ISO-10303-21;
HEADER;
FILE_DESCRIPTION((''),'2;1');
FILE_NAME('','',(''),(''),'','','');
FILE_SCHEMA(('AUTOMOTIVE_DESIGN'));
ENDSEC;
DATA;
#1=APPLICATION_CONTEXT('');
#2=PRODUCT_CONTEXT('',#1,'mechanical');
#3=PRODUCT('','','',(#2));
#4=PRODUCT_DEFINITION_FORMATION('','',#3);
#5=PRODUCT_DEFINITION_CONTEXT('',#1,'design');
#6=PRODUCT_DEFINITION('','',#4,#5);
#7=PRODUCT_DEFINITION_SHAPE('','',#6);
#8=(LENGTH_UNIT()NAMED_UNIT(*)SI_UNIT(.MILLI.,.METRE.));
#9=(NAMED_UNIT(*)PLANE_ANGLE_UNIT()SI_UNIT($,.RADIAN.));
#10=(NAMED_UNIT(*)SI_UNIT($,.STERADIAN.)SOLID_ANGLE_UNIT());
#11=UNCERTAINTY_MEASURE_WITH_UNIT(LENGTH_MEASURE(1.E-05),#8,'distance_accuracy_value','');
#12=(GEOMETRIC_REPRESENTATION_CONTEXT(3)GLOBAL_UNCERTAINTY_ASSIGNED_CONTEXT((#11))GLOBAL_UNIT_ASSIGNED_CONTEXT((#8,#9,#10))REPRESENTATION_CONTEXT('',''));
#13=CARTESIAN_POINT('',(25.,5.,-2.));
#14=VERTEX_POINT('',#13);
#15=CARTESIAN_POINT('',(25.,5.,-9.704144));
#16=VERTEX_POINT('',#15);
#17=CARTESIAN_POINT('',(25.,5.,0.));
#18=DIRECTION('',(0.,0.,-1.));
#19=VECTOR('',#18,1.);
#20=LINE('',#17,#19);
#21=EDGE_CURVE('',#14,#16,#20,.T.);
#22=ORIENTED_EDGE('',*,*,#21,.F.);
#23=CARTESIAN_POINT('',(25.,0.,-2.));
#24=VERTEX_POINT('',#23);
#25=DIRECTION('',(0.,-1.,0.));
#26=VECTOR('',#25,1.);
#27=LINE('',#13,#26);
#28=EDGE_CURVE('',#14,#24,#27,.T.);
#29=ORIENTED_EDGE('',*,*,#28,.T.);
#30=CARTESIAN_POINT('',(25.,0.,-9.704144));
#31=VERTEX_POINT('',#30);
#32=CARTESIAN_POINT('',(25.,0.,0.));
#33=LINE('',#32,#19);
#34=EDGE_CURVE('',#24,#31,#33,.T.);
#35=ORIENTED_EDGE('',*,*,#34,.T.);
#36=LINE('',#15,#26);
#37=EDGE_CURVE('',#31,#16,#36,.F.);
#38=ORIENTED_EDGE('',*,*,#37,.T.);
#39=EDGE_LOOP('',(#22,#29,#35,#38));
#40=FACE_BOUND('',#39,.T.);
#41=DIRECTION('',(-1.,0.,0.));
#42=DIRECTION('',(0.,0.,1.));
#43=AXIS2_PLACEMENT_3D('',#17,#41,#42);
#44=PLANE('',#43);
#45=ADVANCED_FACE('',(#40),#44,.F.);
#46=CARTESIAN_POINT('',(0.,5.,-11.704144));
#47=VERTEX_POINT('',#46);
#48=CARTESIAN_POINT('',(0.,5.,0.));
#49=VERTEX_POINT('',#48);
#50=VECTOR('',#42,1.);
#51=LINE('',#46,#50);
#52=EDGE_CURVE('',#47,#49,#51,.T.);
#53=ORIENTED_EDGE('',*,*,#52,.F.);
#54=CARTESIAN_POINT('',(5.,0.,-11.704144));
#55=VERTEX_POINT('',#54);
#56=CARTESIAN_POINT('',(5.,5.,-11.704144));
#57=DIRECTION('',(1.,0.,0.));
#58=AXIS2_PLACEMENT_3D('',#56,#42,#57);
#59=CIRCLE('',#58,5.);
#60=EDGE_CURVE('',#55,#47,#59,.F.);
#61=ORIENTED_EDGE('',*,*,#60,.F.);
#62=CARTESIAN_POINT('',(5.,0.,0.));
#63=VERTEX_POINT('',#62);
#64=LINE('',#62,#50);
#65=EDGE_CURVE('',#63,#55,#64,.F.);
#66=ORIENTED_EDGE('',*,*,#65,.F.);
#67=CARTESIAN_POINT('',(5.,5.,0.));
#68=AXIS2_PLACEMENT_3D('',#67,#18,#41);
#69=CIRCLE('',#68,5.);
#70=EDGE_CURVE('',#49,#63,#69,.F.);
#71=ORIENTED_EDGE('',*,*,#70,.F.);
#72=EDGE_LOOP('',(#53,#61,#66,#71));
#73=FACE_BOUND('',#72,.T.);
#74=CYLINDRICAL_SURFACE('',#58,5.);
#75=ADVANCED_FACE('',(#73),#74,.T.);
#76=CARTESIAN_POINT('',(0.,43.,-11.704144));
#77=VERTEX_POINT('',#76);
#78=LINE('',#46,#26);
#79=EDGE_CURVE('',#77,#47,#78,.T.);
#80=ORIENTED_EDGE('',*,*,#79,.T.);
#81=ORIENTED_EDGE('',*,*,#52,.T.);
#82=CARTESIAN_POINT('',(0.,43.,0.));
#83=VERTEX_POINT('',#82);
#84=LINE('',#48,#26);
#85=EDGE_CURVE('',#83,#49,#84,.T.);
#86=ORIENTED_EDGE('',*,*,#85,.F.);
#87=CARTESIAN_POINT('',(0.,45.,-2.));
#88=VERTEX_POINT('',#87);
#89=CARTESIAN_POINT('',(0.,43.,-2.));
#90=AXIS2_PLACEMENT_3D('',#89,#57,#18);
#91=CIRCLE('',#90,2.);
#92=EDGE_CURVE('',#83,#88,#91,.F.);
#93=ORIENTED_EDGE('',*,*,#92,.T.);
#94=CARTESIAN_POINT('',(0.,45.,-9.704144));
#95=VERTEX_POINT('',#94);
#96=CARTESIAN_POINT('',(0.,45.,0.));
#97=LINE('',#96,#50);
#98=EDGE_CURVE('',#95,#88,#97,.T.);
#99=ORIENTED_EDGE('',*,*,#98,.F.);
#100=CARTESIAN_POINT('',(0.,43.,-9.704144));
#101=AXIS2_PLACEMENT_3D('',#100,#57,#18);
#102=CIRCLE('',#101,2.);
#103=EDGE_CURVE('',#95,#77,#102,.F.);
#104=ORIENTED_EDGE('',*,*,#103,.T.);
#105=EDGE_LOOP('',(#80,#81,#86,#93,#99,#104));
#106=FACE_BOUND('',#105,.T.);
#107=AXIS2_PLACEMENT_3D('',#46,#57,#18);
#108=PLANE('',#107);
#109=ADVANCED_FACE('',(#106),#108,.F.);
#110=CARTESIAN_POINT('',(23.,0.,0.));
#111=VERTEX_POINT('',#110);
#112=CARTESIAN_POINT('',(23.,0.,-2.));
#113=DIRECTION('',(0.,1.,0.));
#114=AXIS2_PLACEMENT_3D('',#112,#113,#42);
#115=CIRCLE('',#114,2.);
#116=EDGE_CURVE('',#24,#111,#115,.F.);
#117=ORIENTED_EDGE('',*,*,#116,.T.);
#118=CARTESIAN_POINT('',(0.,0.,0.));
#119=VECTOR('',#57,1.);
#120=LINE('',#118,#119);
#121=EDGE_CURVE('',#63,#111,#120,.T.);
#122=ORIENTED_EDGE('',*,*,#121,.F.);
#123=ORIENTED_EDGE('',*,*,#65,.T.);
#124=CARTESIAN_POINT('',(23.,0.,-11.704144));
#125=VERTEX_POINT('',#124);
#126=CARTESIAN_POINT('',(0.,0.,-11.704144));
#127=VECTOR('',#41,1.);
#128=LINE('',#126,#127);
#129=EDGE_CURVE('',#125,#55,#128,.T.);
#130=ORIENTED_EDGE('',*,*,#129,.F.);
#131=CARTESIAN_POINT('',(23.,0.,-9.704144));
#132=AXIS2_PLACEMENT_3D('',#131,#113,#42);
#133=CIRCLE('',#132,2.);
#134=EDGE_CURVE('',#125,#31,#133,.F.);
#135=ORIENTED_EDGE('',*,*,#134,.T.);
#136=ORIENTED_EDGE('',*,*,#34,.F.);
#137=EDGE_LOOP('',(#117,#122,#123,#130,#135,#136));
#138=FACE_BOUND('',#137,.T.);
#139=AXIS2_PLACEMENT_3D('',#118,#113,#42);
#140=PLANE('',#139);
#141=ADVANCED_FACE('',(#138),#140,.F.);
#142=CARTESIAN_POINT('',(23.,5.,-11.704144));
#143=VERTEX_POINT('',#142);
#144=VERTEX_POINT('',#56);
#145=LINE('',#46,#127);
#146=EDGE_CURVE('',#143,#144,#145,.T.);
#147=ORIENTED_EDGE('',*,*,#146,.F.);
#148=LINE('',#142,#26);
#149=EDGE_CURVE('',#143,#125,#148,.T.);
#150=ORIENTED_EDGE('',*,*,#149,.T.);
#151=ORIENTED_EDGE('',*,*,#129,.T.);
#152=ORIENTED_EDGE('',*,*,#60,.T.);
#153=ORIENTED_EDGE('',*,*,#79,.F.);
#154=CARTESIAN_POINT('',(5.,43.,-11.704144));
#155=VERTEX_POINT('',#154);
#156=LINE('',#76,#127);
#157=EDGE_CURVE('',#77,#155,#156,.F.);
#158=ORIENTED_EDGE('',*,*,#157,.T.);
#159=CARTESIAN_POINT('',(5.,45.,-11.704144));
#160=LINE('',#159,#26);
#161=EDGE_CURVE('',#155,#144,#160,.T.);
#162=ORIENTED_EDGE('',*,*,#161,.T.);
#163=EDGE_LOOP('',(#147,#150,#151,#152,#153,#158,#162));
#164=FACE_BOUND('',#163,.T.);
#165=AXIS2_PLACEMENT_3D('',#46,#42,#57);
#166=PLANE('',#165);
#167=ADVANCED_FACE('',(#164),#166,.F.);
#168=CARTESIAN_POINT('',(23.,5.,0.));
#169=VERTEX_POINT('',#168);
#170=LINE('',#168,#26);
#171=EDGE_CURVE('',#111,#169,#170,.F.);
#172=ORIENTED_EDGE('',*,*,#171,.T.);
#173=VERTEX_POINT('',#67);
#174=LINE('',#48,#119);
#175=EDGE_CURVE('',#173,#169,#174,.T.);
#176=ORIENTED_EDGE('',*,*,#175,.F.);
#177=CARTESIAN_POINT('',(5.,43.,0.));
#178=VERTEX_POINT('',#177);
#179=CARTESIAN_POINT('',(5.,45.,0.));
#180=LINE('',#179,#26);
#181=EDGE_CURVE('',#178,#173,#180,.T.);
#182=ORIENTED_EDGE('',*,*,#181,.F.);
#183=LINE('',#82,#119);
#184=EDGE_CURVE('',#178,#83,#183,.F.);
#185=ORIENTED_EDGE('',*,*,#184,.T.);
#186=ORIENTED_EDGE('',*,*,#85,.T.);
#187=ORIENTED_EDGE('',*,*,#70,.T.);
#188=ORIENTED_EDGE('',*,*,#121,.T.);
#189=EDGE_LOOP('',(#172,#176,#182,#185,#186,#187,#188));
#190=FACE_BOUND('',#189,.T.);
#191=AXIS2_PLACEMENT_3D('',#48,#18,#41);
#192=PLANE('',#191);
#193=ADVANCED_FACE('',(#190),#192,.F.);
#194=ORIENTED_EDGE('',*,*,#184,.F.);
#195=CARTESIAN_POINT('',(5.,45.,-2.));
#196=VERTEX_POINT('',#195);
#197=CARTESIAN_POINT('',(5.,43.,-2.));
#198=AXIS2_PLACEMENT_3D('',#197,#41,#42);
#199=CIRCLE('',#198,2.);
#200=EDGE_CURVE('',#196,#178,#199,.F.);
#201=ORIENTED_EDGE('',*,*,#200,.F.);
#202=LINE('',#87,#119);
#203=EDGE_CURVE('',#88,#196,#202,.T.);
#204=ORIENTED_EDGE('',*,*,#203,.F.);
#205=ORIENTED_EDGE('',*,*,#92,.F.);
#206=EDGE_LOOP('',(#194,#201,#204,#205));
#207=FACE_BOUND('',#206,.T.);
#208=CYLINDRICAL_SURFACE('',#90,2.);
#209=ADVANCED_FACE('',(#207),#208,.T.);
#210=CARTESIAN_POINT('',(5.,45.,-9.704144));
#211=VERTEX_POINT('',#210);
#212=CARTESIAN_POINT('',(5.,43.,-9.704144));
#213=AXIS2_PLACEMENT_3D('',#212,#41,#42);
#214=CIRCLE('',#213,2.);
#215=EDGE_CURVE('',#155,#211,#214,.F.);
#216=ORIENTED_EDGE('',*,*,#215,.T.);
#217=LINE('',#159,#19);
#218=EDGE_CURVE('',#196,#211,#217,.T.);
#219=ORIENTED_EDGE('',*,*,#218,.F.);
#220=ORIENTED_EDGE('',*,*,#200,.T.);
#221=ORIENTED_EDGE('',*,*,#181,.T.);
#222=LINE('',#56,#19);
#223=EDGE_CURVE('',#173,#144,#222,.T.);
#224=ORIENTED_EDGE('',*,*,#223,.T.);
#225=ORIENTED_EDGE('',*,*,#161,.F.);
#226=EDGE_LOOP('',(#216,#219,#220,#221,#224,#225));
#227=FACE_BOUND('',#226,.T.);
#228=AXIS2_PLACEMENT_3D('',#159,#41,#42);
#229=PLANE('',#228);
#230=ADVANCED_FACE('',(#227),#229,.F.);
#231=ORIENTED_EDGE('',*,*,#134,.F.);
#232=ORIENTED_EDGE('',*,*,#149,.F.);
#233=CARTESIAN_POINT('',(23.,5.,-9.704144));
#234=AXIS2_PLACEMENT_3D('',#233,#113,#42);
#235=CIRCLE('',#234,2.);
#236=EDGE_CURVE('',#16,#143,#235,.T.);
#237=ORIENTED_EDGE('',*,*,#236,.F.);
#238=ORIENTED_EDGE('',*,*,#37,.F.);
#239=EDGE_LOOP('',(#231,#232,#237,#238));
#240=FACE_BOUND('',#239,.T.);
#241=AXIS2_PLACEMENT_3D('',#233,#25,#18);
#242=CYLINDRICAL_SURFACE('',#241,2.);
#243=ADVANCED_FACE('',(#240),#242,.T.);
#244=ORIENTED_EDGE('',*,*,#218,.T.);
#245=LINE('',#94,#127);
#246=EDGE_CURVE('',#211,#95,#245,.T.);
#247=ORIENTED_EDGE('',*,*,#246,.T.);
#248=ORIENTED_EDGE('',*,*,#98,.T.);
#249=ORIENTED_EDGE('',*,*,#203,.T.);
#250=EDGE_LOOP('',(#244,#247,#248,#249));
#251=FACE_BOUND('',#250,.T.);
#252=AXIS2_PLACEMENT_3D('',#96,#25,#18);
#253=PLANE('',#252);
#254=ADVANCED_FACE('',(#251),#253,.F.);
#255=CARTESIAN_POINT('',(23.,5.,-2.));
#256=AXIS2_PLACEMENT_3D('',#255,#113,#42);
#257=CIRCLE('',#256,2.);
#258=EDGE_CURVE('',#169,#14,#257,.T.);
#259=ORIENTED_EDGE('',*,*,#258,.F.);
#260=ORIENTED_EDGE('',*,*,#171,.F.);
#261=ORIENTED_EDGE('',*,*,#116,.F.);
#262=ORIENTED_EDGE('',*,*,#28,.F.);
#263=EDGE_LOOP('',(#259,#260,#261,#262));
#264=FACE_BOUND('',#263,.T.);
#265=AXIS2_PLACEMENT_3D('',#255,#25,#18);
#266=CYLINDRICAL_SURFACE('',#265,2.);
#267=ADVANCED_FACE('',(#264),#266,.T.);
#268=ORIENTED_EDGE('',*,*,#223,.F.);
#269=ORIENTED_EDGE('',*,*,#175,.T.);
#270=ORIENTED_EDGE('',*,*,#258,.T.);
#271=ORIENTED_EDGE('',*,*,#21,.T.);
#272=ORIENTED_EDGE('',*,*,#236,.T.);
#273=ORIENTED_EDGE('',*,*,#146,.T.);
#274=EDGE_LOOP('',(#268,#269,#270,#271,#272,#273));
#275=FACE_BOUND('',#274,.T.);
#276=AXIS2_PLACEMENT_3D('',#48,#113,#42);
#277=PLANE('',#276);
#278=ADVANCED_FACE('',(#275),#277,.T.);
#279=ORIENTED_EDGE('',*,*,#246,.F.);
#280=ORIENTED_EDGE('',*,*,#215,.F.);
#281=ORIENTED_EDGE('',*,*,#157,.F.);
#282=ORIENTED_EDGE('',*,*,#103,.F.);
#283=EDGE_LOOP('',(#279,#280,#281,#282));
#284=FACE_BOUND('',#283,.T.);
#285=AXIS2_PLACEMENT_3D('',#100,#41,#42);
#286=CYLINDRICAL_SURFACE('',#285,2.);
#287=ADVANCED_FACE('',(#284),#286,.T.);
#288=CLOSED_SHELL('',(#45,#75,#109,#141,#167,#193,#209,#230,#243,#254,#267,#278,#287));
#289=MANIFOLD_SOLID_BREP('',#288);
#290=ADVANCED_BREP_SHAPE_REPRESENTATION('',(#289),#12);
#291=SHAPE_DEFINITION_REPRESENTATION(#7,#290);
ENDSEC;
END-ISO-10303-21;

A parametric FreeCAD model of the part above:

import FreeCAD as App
import Part
import Sketcher

V = App.Vector
Q = App.Units.Quantity


def edges_at(feature, points):
    """Names of the edges that pass closest to the given points."""
    edges = feature.Shape.Edges
    near = lambda p: min(range(len(edges)), key=lambda i: edges[i].distToShape(Part.Vertex(*p))[0])
    return sorted({f"Edge{near(p) + 1}" for p in points})

doc = App.newDocument("Part")
body = doc.addObject("PartDesign::Body", "Body")

# Sketch on XZ plane
sketch1 = doc.addObject("Sketcher::SketchObject", "Sketch")
body.addObject(sketch1)
sketch1.AttachmentSupport = (doc.XZ_Plane, [""])
sketch1.MapMode = "FlatFace"
sketch1.addGeometry(Part.LineSegment(V(0, -12, 0), V(0, 0, 0)), False)
sketch1.addGeometry(Part.LineSegment(V(0, 0, 0), V(25, 0, 0)), False)
sketch1.addGeometry(Part.LineSegment(V(25, 0, 0), V(25, -12, 0)), False)
sketch1.addGeometry(Part.LineSegment(V(25, -12, 0), V(0, -12, 0)), False)
sketch1.addConstraint(Sketcher.Constraint("Coincident", 0, 2, 1, 1))
sketch1.addConstraint(Sketcher.Constraint("Coincident", 1, 2, 2, 1))
sketch1.addConstraint(Sketcher.Constraint("Coincident", 2, 2, 3, 1))
sketch1.addConstraint(Sketcher.Constraint("Coincident", 3, 2, 0, 1))
sketch1.addConstraint(Sketcher.Constraint("Vertical", 0))
sketch1.addConstraint(Sketcher.Constraint("Horizontal", 1))
sketch1.addConstraint(Sketcher.Constraint("Vertical", 2))
sketch1.addConstraint(Sketcher.Constraint("Horizontal", 3))
sketch1.addConstraint(Sketcher.Constraint("Coincident", 0, 2, -1, 1))
sketch1.addConstraint(Sketcher.Constraint("DistanceX", 1, 1, 1, 2, Q("25 mm")))
sketch1.addConstraint(Sketcher.Constraint("DistanceY", 0, 1, 0, 2, Q("11.704144 mm")))
pad1 = doc.addObject("PartDesign::Pad", "Pad")
body.addObject(pad1)
pad1.Profile = sketch1
pad1.Length = 5
pad1.Reversed = True

# Sketch on XZ plane
sketch2 = doc.addObject("Sketcher::SketchObject", "Sketch001")
body.addObject(sketch2)
sketch2.AttachmentSupport = (doc.XZ_Plane, [""])
sketch2.MapMode = "FlatFace"
sketch2.AttachmentOffset = App.Placement(V(0, 0, -5), App.Rotation())
sketch2.addGeometry(Part.LineSegment(V(0, -12, 0), V(0, 0, 0)), False)
sketch2.addGeometry(Part.LineSegment(V(0, 0, 0), V(5, 0, 0)), False)
sketch2.addGeometry(Part.LineSegment(V(5, 0, 0), V(5, -12, 0)), False)
sketch2.addGeometry(Part.LineSegment(V(5, -12, 0), V(0, -12, 0)), False)
sketch2.addConstraint(Sketcher.Constraint("Coincident", 0, 2, 1, 1))
sketch2.addConstraint(Sketcher.Constraint("Coincident", 1, 2, 2, 1))
sketch2.addConstraint(Sketcher.Constraint("Coincident", 2, 2, 3, 1))
sketch2.addConstraint(Sketcher.Constraint("Coincident", 3, 2, 0, 1))
sketch2.addConstraint(Sketcher.Constraint("Vertical", 0))
sketch2.addConstraint(Sketcher.Constraint("Horizontal", 1))
sketch2.addConstraint(Sketcher.Constraint("Vertical", 2))
sketch2.addConstraint(Sketcher.Constraint("Horizontal", 3))
sketch2.addConstraint(Sketcher.Constraint("Coincident", 0, 2, -1, 1))
sketch2.addConstraint(Sketcher.Constraint("DistanceX", 1, 1, 1, 2, Q("5 mm")))
sketch2.addConstraint(Sketcher.Constraint("DistanceY", 0, 1, 0, 2, Q("11.704144 mm")))
pad2 = doc.addObject("PartDesign::Pad", "Pad001")
body.addObject(pad2)
pad2.Profile = sketch2
pad2.Length = 40
pad2.Reversed = True
doc.recompute()

fillet = doc.addObject("PartDesign::Fillet", "Fillet")
body.addObject(fillet)
fillet.Base = (pad2, edges_at(pad2, [(0, 0, -5.852)]))
fillet.Radius = 5
doc.recompute()

fillet2 = doc.addObject("PartDesign::Fillet", "Fillet001")
body.addObject(fillet2)
fillet2.Base = (fillet, edges_at(fillet, [
    (2.5, 45, 0),
    (2.5, 45, -11.704),
    (25, 2.5, -11.704),
    (25, 2.5, 0),
]))
fillet2.Radius = 2

doc.recompute()
